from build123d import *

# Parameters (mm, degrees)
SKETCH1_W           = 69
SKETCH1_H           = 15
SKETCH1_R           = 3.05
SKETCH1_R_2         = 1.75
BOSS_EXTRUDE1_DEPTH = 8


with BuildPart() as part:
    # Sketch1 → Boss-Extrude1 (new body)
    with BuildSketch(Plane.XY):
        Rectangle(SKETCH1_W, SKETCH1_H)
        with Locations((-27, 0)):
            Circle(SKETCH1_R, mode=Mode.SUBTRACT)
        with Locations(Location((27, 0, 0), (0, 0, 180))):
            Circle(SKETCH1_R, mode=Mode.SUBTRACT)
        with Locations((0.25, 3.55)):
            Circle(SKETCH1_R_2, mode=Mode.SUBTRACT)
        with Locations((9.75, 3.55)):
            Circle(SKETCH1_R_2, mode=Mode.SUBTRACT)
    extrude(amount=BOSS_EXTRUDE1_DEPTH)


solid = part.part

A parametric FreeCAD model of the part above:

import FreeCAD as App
import Part
import Sketcher

V = App.Vector
Q = App.Units.Quantity

doc = App.newDocument("Part")
body = doc.addObject("PartDesign::Body", "Body")

sketch1 = body.newObject("Sketcher::SketchObject", "Sketch")
sketch1.AttachmentSupport = (doc.getObject("XY_Plane"), [""])
sketch1.MapMode = "FlatFace"
sketch1.addGeometry(Part.LineSegment(V(-34.5, 7.5, 0), V(-34.5, -7.5, 0)), False)
sketch1.addGeometry(Part.LineSegment(V(-34.5, -7.5, 0), V(34.5, -7.5, 0)), False)
sketch1.addGeometry(Part.LineSegment(V(34.5, -7.5, 0), V(34.5, 7.5, 0)), False)
sketch1.addGeometry(Part.LineSegment(V(34.5, 7.5, 0), V(-34.5, 7.5, 0)), False)
sketch1.addGeometry(Part.Circle(V(-27, 0, 0), V(0, 0, 1), 3.05), False)
sketch1.addGeometry(Part.Circle(V(27, 0, 0), V(0, 0, 1), 3.05), False)
sketch1.addGeometry(Part.Circle(V(0.25, 3.55, 0), V(0, 0, 1), 1.75), False)
sketch1.addGeometry(Part.Circle(V(9.75, 3.55, 0), V(0, 0, 1), 1.75), False)
sketch1.addConstraint(Sketcher.Constraint("Coincident", 0, 2, 1, 1))
sketch1.addConstraint(Sketcher.Constraint("Coincident", 1, 2, 2, 1))
sketch1.addConstraint(Sketcher.Constraint("Coincident", 2, 2, 3, 1))
sketch1.addConstraint(Sketcher.Constraint("Coincident", 3, 2, 0, 1))
sketch1.addConstraint(Sketcher.Constraint("Vertical", 0))
sketch1.addConstraint(Sketcher.Constraint("Horizontal", 1))
sketch1.addConstraint(Sketcher.Constraint("Vertical", 2))
sketch1.addConstraint(Sketcher.Constraint("Horizontal", 3))
sketch1.addConstraint(Sketcher.Constraint("Equal", 4, 5))
sketch1.addConstraint(Sketcher.Constraint("Equal", 6, 7))
sketch1.addConstraint(Sketcher.Constraint("Symmetric", 4, 3, 5, 3, -1, 1))
sketch1.addConstraint(Sketcher.Constraint("Symmetric", 0, 2, 2, 2, -1, 1))
sketch1.addConstraint(Sketcher.Constraint("PointOnObject", 4, 3, -1))
sketch1.addConstraint(Sketcher.Constraint("Horizontal", 6, 3, 7, 3))
sketch1.addConstraint(Sketcher.Constraint("Diameter", 4, Q("6.1 mm")))
sketch1.addConstraint(Sketcher.Constraint("Diameter", 6, Q("3.5 mm")))
sketch1.addConstraint(Sketcher.Constraint("DistanceX", 1, 1, 1, 2, Q("69 mm")))
sketch1.addConstraint(Sketcher.Constraint("DistanceY", 0, 2, 0, 1, Q("15 mm")))
sketch1.addConstraint(Sketcher.Constraint("DistanceX", 4, 3, -1, 1, Q("27 mm")))
sketch1.addConstraint(Sketcher.Constraint("DistanceX", 6, 3, 7, 3, Q("9.5 mm")))
sketch1.addConstraint(Sketcher.Constraint("DistanceX", -1, 1, 6, 3, Q("0.25 mm")))
sketch1.addConstraint(Sketcher.Constraint("DistanceY", -1, 1, 6, 3, Q("3.55 mm")))
pad1 = body.newObject("PartDesign::Pad", "Pad")
pad1.Profile = sketch1
pad1.Length = 8

doc.recompute()
